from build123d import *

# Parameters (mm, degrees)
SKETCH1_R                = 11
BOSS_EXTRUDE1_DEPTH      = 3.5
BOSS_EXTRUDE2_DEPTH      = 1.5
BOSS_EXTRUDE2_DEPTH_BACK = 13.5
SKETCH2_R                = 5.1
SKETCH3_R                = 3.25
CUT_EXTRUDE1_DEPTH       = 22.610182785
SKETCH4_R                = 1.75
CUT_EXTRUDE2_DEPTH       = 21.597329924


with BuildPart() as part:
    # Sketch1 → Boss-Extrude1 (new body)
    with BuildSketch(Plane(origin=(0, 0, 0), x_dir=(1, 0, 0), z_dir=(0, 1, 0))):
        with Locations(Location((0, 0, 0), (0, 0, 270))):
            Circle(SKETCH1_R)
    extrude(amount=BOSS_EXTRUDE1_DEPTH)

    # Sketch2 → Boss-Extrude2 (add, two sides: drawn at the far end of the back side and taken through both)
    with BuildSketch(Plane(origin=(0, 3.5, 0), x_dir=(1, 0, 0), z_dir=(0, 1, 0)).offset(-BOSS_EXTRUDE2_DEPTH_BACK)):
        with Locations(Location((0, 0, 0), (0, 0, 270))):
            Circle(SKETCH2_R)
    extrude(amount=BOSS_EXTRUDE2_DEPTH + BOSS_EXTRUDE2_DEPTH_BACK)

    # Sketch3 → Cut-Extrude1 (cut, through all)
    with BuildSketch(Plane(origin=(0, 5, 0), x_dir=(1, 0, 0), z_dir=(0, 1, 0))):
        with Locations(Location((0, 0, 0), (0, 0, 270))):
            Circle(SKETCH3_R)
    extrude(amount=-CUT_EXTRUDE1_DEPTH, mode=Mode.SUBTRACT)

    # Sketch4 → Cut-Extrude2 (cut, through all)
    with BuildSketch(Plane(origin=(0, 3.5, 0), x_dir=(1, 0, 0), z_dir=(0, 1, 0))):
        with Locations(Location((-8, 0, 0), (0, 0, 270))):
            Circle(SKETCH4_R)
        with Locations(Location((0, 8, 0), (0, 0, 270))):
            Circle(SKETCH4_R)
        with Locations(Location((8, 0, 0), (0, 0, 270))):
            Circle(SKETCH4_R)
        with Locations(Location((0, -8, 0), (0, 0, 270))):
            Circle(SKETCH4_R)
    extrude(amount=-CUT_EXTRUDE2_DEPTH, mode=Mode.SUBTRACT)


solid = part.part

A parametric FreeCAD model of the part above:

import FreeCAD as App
import Part
import Sketcher
from FreeCAD import Vector

doc = App.newDocument("Part")
body = doc.addObject("PartDesign::Body", "Body")

# Sketch on XZ plane
sketch1 = doc.addObject("Sketcher::SketchObject", "Sketch")
body.addObject(sketch1)
sketch1.AttachmentSupport = (doc.XZ_Plane, [""])
sketch1.MapMode = "FlatFace"
sketch1.addGeometry(Part.Circle(Vector(0, 0, 0), Vector(0, 0, 1), 11), False)
sketch1.addConstraint(Sketcher.Constraint("Coincident", 0, 3, -1, 1))
sketch1.addConstraint(Sketcher.Constraint("Diameter", 0, 22.0))
pad1 = doc.addObject("PartDesign::Pad", "Pad")
body.addObject(pad1)
pad1.Profile = sketch1
pad1.Length = 3.5
pad1.Reversed = True

# Sketch on XZ plane
sketch2 = doc.addObject("Sketcher::SketchObject", "Sketch001")
body.addObject(sketch2)
sketch2.AttachmentSupport = (doc.XZ_Plane, [""])
sketch2.MapMode = "FlatFace"
sketch2.AttachmentOffset = App.Placement(Vector(0, 0, -3.5), App.Rotation())
sketch2.addGeometry(Part.Circle(Vector(0, 0, 0), Vector(0, 0, 1), 5), False)
sketch2.addConstraint(Sketcher.Constraint("Coincident", 0, 3, -1, 1))
sketch2.addConstraint(Sketcher.Constraint("Diameter", 0, 10.2))
pad2 = doc.addObject("PartDesign::Pad", "Pad001")
body.addObject(pad2)
pad2.Profile = sketch2
pad2.Type = "TwoLengths"
pad2.Length = 1.5
pad2.Length2 = 13.5
pad2.Reversed = True

# Sketch on XZ plane
sketch3 = doc.addObject("Sketcher::SketchObject", "Sketch002")
body.addObject(sketch3)
sketch3.AttachmentSupport = (doc.XZ_Plane, [""])
sketch3.MapMode = "FlatFace"
sketch3.AttachmentOffset = App.Placement(Vector(0, 0, -5), App.Rotation())
sketch3.addGeometry(Part.Circle(Vector(0, 0, 0), Vector(0, 0, 1), 3.2), False)
sketch3.addConstraint(Sketcher.Constraint("Coincident", 0, 3, -1, 1))
sketch3.addConstraint(Sketcher.Constraint("Diameter", 0, 6.5))
pocket1 = doc.addObject("PartDesign::Pocket", "Pocket")
body.addObject(pocket1)
pocket1.Profile = sketch3
pocket1.Type = "ThroughAll"
pocket1.Reversed = True

# Sketch on XZ plane
sketch4 = doc.addObject("Sketcher::SketchObject", "Sketch003")
body.addObject(sketch4)
sketch4.AttachmentSupport = (doc.XZ_Plane, [""])
sketch4.MapMode = "FlatFace"
sketch4.AttachmentOffset = App.Placement(Vector(0, 0, -3.5), App.Rotation())
sketch4.addGeometry(Part.Circle(Vector(-8, 0, 0), Vector(0, 0, 1), 1.8), False)
sketch4.addGeometry(Part.Circle(Vector(0, -8, 0), Vector(0, 0, 1), 1.8), False)
sketch4.addGeometry(Part.Circle(Vector(8, 0, 0), Vector(0, 0, 1), 1.8), False)
sketch4.addGeometry(Part.Circle(Vector(0, 8, 0), Vector(0, 0, 1), 1.8), False)
sketch4.addConstraint(Sketcher.Constraint("Equal", 0, 1))
sketch4.addConstraint(Sketcher.Constraint("Equal", 1, 2))
sketch4.addConstraint(Sketcher.Constraint("Equal", 2, 3))
sketch4.addConstraint(Sketcher.Constraint("Symmetric", 0, 3, 2, 3, -1, 1))
sketch4.addConstraint(Sketcher.Constraint("Symmetric", 1, 3, 3, 3, -1, 1))
sketch4.addConstraint(Sketcher.Constraint("PointOnObject", 0, 3, -1))
sketch4.addConstraint(Sketcher.Constraint("PointOnObject", 1, 3, -2))
sketch4.addConstraint(Sketcher.Constraint("Diameter", 0, 3.5))
sketch4.addConstraint(Sketcher.Constraint("DistanceX", 0, 3, -1, 1, 8.0))
sketch4.addConstraint(Sketcher.Constraint("DistanceY", 1, 3, -1, 1, 8.0))
pocket2 = doc.addObject("PartDesign::Pocket", "Pocket001")
body.addObject(pocket2)
pocket2.Profile = sketch4
pocket2.Type = "ThroughAll"
pocket2.Reversed = True

doc.recompute()
